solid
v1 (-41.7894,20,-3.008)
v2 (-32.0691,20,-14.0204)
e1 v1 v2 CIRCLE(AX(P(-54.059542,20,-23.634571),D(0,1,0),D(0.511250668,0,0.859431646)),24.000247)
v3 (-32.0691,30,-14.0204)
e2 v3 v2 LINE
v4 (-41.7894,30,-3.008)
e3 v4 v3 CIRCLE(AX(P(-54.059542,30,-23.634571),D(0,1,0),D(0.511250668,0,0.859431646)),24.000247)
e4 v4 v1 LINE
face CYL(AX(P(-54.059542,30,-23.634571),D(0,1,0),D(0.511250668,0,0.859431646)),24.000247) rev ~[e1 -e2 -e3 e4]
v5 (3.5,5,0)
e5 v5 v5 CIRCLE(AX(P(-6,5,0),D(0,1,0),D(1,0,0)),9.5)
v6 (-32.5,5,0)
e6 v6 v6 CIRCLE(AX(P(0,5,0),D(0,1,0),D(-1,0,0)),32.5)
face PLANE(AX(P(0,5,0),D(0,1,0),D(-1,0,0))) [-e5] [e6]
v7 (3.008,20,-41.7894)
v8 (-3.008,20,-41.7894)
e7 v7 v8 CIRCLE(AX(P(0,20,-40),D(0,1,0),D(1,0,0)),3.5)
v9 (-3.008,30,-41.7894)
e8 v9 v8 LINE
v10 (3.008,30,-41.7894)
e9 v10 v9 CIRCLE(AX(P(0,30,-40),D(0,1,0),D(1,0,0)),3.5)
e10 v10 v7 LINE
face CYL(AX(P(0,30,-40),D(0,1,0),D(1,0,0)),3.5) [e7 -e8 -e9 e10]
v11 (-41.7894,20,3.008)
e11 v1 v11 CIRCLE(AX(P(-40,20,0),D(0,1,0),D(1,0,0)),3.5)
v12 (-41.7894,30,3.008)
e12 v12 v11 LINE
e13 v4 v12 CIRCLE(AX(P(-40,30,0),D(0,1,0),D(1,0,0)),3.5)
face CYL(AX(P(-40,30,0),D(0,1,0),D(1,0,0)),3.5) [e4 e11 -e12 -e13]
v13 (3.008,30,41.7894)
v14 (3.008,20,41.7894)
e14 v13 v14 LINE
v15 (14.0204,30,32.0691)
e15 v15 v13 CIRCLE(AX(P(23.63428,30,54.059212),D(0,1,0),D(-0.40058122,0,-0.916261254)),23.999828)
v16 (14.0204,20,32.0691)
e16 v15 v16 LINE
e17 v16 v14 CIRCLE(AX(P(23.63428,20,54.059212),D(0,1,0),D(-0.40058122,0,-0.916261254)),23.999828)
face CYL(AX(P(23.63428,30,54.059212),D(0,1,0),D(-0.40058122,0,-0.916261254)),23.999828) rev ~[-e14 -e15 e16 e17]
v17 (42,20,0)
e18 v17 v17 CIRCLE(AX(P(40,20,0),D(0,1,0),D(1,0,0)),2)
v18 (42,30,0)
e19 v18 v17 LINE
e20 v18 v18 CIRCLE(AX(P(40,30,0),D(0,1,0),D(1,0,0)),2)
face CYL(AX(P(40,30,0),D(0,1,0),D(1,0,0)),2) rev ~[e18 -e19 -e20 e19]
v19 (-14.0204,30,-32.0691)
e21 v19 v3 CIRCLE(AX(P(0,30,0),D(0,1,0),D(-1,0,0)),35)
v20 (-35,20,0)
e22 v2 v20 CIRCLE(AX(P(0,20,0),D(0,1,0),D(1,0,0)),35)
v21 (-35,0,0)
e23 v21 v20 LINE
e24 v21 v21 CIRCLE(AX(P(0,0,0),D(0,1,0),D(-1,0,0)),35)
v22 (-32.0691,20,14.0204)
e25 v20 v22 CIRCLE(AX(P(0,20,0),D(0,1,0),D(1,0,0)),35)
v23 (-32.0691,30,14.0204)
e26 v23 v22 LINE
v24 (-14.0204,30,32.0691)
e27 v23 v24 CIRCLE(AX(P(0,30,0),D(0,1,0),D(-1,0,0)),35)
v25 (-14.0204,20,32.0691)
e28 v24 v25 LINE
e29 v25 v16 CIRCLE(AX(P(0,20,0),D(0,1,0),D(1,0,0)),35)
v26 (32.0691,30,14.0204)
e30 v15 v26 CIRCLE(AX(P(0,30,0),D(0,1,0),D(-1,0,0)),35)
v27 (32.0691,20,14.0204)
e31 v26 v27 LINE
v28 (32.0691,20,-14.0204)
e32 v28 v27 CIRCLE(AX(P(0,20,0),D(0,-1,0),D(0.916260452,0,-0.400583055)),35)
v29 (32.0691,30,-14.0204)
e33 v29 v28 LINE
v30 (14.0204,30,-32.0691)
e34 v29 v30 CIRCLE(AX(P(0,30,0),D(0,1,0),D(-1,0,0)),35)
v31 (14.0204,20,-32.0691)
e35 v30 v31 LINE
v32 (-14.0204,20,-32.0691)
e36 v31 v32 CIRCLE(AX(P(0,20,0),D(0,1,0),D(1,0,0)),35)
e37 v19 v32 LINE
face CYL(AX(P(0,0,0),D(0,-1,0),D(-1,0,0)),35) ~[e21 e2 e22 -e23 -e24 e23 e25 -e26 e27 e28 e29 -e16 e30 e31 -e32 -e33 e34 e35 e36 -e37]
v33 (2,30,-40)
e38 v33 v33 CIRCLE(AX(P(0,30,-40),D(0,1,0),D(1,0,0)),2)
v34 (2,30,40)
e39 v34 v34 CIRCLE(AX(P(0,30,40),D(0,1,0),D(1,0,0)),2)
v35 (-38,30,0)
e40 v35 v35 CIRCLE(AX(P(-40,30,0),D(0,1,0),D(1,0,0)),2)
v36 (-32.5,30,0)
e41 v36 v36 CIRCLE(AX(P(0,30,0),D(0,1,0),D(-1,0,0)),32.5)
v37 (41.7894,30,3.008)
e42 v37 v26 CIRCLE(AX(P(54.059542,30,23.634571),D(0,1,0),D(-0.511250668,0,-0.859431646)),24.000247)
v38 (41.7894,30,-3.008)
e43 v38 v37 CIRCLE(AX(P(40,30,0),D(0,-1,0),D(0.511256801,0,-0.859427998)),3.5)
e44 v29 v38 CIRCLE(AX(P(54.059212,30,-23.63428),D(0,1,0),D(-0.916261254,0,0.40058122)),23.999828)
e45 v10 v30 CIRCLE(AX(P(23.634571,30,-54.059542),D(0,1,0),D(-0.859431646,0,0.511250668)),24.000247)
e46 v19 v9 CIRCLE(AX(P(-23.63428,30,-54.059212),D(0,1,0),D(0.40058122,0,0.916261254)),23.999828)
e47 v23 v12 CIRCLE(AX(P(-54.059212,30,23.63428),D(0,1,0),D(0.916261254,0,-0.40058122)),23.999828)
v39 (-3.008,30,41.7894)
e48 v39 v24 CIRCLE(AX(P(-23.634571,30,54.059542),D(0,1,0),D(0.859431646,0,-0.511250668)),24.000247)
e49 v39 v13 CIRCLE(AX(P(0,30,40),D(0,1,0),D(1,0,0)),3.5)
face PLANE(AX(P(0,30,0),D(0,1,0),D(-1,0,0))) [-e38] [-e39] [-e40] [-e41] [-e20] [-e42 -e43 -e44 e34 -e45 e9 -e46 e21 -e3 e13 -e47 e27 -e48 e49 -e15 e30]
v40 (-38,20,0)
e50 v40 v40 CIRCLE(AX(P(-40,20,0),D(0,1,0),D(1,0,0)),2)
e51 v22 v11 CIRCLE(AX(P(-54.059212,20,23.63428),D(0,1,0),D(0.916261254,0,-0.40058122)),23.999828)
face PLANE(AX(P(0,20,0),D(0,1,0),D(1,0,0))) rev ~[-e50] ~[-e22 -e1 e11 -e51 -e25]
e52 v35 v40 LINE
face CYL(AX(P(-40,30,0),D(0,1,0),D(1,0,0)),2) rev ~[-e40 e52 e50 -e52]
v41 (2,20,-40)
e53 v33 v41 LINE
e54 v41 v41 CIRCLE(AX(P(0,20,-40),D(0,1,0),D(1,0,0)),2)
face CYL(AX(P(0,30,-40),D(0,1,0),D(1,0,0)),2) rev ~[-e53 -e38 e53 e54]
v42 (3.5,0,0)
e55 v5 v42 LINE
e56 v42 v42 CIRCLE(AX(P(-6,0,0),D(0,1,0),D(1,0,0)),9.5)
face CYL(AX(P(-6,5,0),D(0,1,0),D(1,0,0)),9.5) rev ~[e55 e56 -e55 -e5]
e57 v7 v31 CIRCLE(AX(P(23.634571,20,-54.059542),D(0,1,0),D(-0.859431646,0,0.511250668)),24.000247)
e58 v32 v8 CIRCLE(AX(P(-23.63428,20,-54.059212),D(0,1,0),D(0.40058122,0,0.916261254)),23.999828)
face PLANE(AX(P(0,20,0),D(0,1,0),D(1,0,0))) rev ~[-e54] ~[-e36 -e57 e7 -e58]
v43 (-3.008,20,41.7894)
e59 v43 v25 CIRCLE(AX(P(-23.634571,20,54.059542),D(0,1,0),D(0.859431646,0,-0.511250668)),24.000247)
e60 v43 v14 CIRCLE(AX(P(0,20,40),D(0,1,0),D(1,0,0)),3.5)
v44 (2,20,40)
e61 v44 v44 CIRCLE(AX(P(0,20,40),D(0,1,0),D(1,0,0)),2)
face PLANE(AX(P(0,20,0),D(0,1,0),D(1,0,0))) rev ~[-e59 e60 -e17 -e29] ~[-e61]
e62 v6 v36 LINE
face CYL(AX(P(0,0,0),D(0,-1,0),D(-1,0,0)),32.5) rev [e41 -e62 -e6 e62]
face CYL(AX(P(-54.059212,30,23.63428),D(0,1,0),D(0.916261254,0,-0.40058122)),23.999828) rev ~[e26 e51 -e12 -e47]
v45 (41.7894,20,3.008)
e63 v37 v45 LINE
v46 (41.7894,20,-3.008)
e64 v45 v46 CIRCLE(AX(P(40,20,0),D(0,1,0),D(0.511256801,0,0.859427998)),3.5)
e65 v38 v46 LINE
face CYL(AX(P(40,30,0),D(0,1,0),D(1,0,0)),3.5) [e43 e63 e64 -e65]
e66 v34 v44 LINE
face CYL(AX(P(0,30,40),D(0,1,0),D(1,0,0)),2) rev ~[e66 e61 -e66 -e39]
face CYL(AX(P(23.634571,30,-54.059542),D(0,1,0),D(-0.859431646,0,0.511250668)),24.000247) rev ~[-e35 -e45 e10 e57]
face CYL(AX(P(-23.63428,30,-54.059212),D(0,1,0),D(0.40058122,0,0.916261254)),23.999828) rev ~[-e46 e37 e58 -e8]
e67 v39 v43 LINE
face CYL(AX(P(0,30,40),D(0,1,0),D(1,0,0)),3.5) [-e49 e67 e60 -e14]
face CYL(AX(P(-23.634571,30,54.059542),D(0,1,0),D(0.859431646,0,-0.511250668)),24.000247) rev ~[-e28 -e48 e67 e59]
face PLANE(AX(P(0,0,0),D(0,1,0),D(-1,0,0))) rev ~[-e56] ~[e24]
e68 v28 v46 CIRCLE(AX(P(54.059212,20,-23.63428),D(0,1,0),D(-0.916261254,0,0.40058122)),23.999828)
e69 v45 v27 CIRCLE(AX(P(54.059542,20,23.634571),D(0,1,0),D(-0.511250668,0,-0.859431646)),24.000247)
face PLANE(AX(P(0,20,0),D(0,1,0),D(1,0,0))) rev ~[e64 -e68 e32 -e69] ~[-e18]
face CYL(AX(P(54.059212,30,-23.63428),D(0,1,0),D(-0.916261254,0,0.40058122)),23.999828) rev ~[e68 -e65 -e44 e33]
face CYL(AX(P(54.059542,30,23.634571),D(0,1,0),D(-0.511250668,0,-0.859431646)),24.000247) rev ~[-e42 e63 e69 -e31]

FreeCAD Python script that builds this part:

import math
import FreeCAD as App
import Part
import Sketcher
Q = App.Units.Quantity

doc = App.newDocument("Part")
params = doc.addObject("Spreadsheet::Sheet", "Params")
for row, (alias, value) in enumerate([
    ("sketch1_diameter", "65 mm"),
    ("pad1_length", "5 mm"),
    ("sketch2_diameter", "70 mm"),
    ("sketch2_diameter2", "65 mm"),
    ("pad2_length", "30 mm"),
    ("sketch3_diameter", "4 mm"),
    ("sketch3_radius", "24 mm"),
    ("sketch3_radius2", "3.5 mm"),
    ("sketch3_radius3", "35 mm"),
    ("pad3_length", "10 mm"),
    ("sketch4_diameter", "19 mm"),
    ("pocket1_length", "10 mm"),
], start=1):
    params.set(f"A{row}", alias)
    params.set(f"B{row}", "=" + value)
    params.setAlias(f"B{row}", alias)

body = doc.addObject("PartDesign::Body", "Body")

# Sketch on XZ plane
sketch1 = body.newObject("Sketcher::SketchObject", "Sketch")
sketch1.AttachmentSupport = (doc.getObject("XZ_Plane"), [""])
sketch1.MapMode = "FlatFace"
sketch1.addGeometry(Part.Circle(App.Vector(0, 0, 0), App.Vector(0, 0, 1), 32), False)
sketch1.addConstraint([
    Sketcher.Constraint("Coincident", 0, 3, -1, 1),
    Sketcher.Constraint("Diameter", 0, Q("65 mm")),
])
sketch1.setExpression("Constraints[1]", "Params.sketch1_diameter")
pad1 = body.newObject("PartDesign::Pad", "Pad")
pad1.Profile = sketch1
pad1.setExpression("Length", "Params.pad1_length")
pad1.Reversed = True

# Sketch on XZ plane
sketch2 = body.newObject("Sketcher::SketchObject", "Sketch001")
sketch2.AttachmentSupport = (doc.getObject("XZ_Plane"), [""])
sketch2.MapMode = "FlatFace"
sketch2.addGeometry([
    Part.Circle(App.Vector(0, 0, 0), App.Vector(0, 0, 1), 35),
    Part.Circle(App.Vector(0, 0, 0), App.Vector(0, 0, 1), 32),
], False)
sketch2.addConstraint([
    Sketcher.Constraint("Coincident", 0, 3, -1, 1),
    Sketcher.Constraint("Coincident", 1, 3, -1, 1),
    Sketcher.Constraint("Diameter", 0, Q("70 mm")),
    Sketcher.Constraint("Diameter", 1, Q("65 mm")),
])
sketch2.setExpression("Constraints[2]", "Params.sketch2_diameter")
sketch2.setExpression("Constraints[3]", "Params.sketch2_diameter2")
pad2 = body.newObject("PartDesign::Pad", "Pad001")
pad2.Profile = sketch2
pad2.setExpression("Length", "Params.pad2_length")
pad2.Reversed = True

# Sketch on XZ plane
sketch3 = body.newObject("Sketcher::SketchObject", "Sketch002")
sketch3.AttachmentSupport = (doc.getObject("XZ_Plane"), [""])
sketch3.MapMode = "FlatFace"
sketch3.AttachmentOffset = App.Placement(App.Vector(0, 0, -30), App.Rotation())
sketch3.addGeometry([
    Part.ArcOfCircle(Part.Circle(App.Vector(-40, 0, 0), App.Vector(0, 0, 1), 3.5), math.radians(121), math.radians(239)),  # 0
    Part.ArcOfCircle(Part.Circle(App.Vector(-54.1, 23.6, 0), App.Vector(0, 0, 1), 24), math.radians(-59), math.radians(-24)),  # 1
    Part.ArcOfCircle(Part.Circle(App.Vector(0, 0, 0), App.Vector(0, 0, 1), 35), math.radians(156), math.radians(204)),  # 2
    Part.ArcOfCircle(Part.Circle(App.Vector(-54.1, -23.6, 0), App.Vector(0, 0, 1), 24), math.radians(24), math.radians(59)),  # 3
    Part.Circle(App.Vector(-40, 0, 0), App.Vector(0, 0, 1), 2),  # 4
    Part.ArcOfCircle(Part.Circle(App.Vector(-23.6, -54.1, 0), App.Vector(0, 0, 1), 24), math.radians(31), math.radians(66)),  # 5
    Part.ArcOfCircle(Part.Circle(App.Vector(0, 0, 0), App.Vector(0, 0, 1), 35), math.radians(-114), math.radians(-66)),  # 6
    Part.ArcOfCircle(Part.Circle(App.Vector(23.6, -54.1, 0), App.Vector(0, 0, 1), 24), math.radians(114), math.radians(149)),  # 7
    Part.ArcOfCircle(Part.Circle(App.Vector(0, -40, 0), App.Vector(0, 0, 1), 3.5), math.radians(-149), math.radians(-31)),  # 8
    Part.Circle(App.Vector(0, -40, 0), App.Vector(0, 0, 1), 2),  # 9
    Part.ArcOfCircle(Part.Circle(App.Vector(0, 0, 0), App.Vector(0, 0, 1), 35), math.radians(66), math.radians(114)),  # 10
    Part.ArcOfCircle(Part.Circle(App.Vector(-23.6, 54.1, 0), App.Vector(0, 0, 1), 24), math.radians(-66), math.radians(-31)),  # 11
    Part.ArcOfCircle(Part.Circle(App.Vector(0, 40, 0), App.Vector(0, 0, 1), 3.5), math.radians(31), math.radians(149)),  # 12
    Part.ArcOfCircle(Part.Circle(App.Vector(23.6, 54.1, 0), App.Vector(0, 0, 1), 24), math.radians(-149), math.radians(-114)),  # 13
    Part.Circle(App.Vector(0, 40, 0), App.Vector(0, 0, 1), 2),  # 14
    Part.ArcOfCircle(Part.Circle(App.Vector(54.1, -23.6, 0), App.Vector(0, 0, 1), 24), math.radians(121), math.radians(156)),  # 15
    Part.ArcOfCircle(Part.Circle(App.Vector(0, 0, 0), App.Vector(0, 0, 1), 35), math.radians(-24), math.radians(24)),  # 16
    Part.ArcOfCircle(Part.Circle(App.Vector(54.1, 23.6, 0), App.Vector(0, 0, 1), 24), math.radians(-156), math.radians(-121)),  # 17
    Part.ArcOfCircle(Part.Circle(App.Vector(40, 0, 0), App.Vector(0, 0, 1), 3.5), math.radians(-59), math.radians(59)),  # 18
    Part.Circle(App.Vector(40, 0, 0), App.Vector(0, 0, 1), 2),  # 19
], False)
sketch3.addConstraint([
    Sketcher.Constraint("Tangent", 0, 1, 1, 1),
    Sketcher.Constraint("Tangent", 1, 2, 2, 1),
    Sketcher.Constraint("Tangent", 2, 2, 3, 1),
    Sketcher.Constraint("Tangent", 3, 2, 0, 2),
    Sketcher.Constraint("Tangent", 5, 2, 6, 1),
    Sketcher.Constraint("Tangent", 6, 2, 7, 1),
    Sketcher.Constraint("Tangent", 7, 2, 8, 2),
    Sketcher.Constraint("Tangent", 8, 1, 5, 1),
    Sketcher.Constraint("Tangent", 10, 2, 11, 1),
    Sketcher.Constraint("Tangent", 11, 2, 12, 2),
    Sketcher.Constraint("Tangent", 12, 1, 13, 1),
    Sketcher.Constraint("Tangent", 13, 2, 10, 1),
    Sketcher.Constraint("Tangent", 15, 2, 16, 1),
    Sketcher.Constraint("Tangent", 16, 2, 17, 1),
    Sketcher.Constraint("Tangent", 17, 2, 18, 2),
    Sketcher.Constraint("Tangent", 18, 1, 15, 1),
    Sketcher.Constraint("Coincident", 2, 3, -1, 1),
    Sketcher.Constraint("Coincident", 6, 3, -1, 1),
    Sketcher.Constraint("Coincident", 10, 3, -1, 1),
    Sketcher.Constraint("Coincident", 16, 3, -1, 1),
    Sketcher.Constraint("Coincident", 4, 3, 0, 3),
    Sketcher.Constraint("Coincident", 9, 3, 8, 3),
    Sketcher.Constraint("Coincident", 14, 3, 12, 3),
    Sketcher.Constraint("Coincident", 19, 3, 18, 3),
    Sketcher.Constraint("Equal", 1, 3),
    Sketcher.Constraint("Equal", 3, 5),
    Sketcher.Constraint("Equal", 2, 6),
    Sketcher.Constraint("Equal", 5, 7),
    Sketcher.Constraint("Equal", 0, 8),
    Sketcher.Constraint("Equal", 4, 9),
    Sketcher.Constraint("Equal", 6, 10),
    Sketcher.Constraint("Equal", 7, 11),
    Sketcher.Constraint("Equal", 8, 12),
    Sketcher.Constraint("Equal", 11, 13),
    Sketcher.Constraint("Equal", 9, 14),
    Sketcher.Constraint("Equal", 13, 15),
    Sketcher.Constraint("Equal", 10, 16),
    Sketcher.Constraint("Equal", 15, 17),
    Sketcher.Constraint("Equal", 12, 18),
    Sketcher.Constraint("Equal", 14, 19),
    Sketcher.Constraint("Symmetric", 8, 3, 12, 3, -1, 1),
    Sketcher.Constraint("Symmetric", 0, 3, 18, 3, -1, 1),
    Sketcher.Constraint("PointOnObject", 0, 3, -1),
    Sketcher.Constraint("PointOnObject", 8, 3, -2),
    Sketcher.Constraint("Diameter", 4, Q("4 mm")),
    Sketcher.Constraint("Radius", 1, Q("24 mm")),
    Sketcher.Constraint("Radius", 0, Q("3.5 mm")),
    Sketcher.Constraint("DistanceX", 0, 3, -1, 1, Q("40 mm")),
    Sketcher.Constraint("DistanceY", 8, 3, -1, 1, Q("40 mm")),
    Sketcher.Constraint("Radius", 2, Q("35 mm")),
])
sketch3.setExpression("Constraints[44]", "Params.sketch3_diameter")
sketch3.setExpression("Constraints[45]", "Params.sketch3_radius")
sketch3.setExpression("Constraints[46]", "Params.sketch3_radius2")
sketch3.setExpression("Constraints[49]", "Params.sketch3_radius3")
pad3 = body.newObject("PartDesign::Pad", "Pad002")
pad3.Profile = sketch3
pad3.setExpression("Length", "Params.pad3_length")

# Sketch on XZ plane
sketch4 = body.newObject("Sketcher::SketchObject", "Sketch003")
sketch4.AttachmentSupport = (doc.getObject("XZ_Plane"), [""])
sketch4.MapMode = "FlatFace"
sketch4.AttachmentOffset = App.Placement(App.Vector(0, 0, -5), App.Rotation())
sketch4.addGeometry(Part.Circle(App.Vector(-6, 0, 0), App.Vector(0, 0, 1), 10), False)
sketch4.addConstraint([
    Sketcher.Constraint("PointOnObject", 0, 3, -1),
    Sketcher.Constraint("Diameter", 0, Q("19 mm")),
    Sketcher.Constraint("DistanceX", 0, 3, -1, 1, Q("6 mm")),
])
sketch4.setExpression("Constraints[1]", "Params.sketch4_diameter")
pocket1 = body.newObject("PartDesign::Pocket", "Pocket")
pocket1.Profile = sketch4
pocket1.setExpression("Length", "Params.pocket1_length")
pocket1.Reversed = True

doc.recompute()
